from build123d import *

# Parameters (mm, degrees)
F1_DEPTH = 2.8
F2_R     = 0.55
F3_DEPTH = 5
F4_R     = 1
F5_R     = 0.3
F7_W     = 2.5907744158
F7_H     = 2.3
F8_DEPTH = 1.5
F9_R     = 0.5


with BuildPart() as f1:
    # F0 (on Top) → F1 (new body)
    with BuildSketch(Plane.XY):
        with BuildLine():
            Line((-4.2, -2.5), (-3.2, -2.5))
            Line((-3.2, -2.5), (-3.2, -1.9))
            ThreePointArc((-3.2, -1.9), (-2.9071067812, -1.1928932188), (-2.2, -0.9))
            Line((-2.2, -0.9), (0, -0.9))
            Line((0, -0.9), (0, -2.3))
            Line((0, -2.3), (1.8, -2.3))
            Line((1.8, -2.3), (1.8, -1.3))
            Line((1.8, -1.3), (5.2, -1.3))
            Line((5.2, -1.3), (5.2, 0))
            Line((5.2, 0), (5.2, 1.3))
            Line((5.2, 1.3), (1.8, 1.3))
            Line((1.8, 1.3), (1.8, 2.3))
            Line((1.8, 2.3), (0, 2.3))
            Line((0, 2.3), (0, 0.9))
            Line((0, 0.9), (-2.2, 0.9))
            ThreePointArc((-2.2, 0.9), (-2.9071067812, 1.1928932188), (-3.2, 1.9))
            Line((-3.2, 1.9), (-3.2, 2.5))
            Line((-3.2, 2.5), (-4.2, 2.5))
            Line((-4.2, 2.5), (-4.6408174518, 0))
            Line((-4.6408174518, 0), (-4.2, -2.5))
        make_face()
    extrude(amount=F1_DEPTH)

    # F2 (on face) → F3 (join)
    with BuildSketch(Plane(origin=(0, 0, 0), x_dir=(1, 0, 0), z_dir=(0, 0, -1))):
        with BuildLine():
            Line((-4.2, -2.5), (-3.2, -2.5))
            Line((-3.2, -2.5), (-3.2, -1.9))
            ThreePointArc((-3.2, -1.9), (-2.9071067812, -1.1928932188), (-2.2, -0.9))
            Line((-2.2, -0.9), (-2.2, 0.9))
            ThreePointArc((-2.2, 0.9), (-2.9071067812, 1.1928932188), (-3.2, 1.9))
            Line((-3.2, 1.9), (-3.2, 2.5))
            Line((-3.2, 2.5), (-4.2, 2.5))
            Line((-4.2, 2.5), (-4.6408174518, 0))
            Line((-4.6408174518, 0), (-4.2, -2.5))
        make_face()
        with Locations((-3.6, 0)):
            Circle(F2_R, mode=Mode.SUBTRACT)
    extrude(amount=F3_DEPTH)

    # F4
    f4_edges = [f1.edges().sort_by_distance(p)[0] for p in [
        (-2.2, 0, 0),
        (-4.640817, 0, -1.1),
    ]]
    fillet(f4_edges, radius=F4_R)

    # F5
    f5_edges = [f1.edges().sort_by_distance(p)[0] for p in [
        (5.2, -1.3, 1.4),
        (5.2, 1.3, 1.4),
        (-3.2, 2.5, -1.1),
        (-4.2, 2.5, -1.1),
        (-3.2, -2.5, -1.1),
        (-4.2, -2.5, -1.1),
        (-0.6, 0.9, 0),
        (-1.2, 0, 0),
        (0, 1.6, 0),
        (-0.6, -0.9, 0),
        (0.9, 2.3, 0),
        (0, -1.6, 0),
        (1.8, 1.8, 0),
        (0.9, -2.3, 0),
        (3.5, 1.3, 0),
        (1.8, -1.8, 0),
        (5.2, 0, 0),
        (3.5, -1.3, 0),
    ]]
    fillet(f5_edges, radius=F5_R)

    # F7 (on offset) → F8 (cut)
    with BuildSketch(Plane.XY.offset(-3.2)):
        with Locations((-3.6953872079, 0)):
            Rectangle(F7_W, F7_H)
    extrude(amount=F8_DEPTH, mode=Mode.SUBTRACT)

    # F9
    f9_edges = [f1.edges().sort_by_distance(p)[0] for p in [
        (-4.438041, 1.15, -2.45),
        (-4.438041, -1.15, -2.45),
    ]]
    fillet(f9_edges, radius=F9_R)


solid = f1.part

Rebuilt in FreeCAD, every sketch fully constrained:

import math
import FreeCAD as App
import Part
import Sketcher
Q = App.Units.Quantity


def edges_at(feature, points):
    """Names of the edges that pass closest to the given points."""
    edges = feature.Shape.Edges
    near = lambda p: min(range(len(edges)), key=lambda i: edges[i].distToShape(Part.Vertex(*p))[0])
    return sorted({f"Edge{near(p) + 1}" for p in points})

doc = App.newDocument("Part")
body = doc.addObject("PartDesign::Body", "Body")

sketch1 = doc.addObject("Sketcher::SketchObject", "Sketch")
body.addObject(sketch1)
sketch1.AttachmentSupport = (doc.XY_Plane, [""])
sketch1.MapMode = "FlatFace"
sketch1.addGeometry([
    Part.LineSegment(App.Vector(-4.2, -2.5, 0), App.Vector(-3.2, -2.5, 0)),
    Part.LineSegment(App.Vector(-3.2, -2.5, 0), App.Vector(-3.2, -1.9, 0)),
    Part.ArcOfCircle(Part.Circle(App.Vector(-2.2, -1.9, 0), App.Vector(0, 0, 1), 1), math.radians(90), math.radians(180)),
    Part.LineSegment(App.Vector(-2.2, -0.9, 0), App.Vector(0, -0.9, 0)),
    Part.LineSegment(App.Vector(0, -0.9, 0), App.Vector(0, -2.3, 0)),
    Part.LineSegment(App.Vector(0, -2.3, 0), App.Vector(1.8, -2.3, 0)),
    Part.LineSegment(App.Vector(1.8, -2.3, 0), App.Vector(1.8, -1.3, 0)),
    Part.LineSegment(App.Vector(1.8, -1.3, 0), App.Vector(5.2, -1.3, 0)),
    Part.LineSegment(App.Vector(5.2, -1.3, 0), App.Vector(5.2, 1.3, 0)),
    Part.LineSegment(App.Vector(5.2, 1.3, 0), App.Vector(1.8, 1.3, 0)),
    Part.LineSegment(App.Vector(1.8, 1.3, 0), App.Vector(1.8, 2.3, 0)),
    Part.LineSegment(App.Vector(1.8, 2.3, 0), App.Vector(0, 2.3, 0)),
    Part.LineSegment(App.Vector(0, 2.3, 0), App.Vector(0, 0.9, 0)),
    Part.LineSegment(App.Vector(0, 0.9, 0), App.Vector(-2.2, 0.9, 0)),
    Part.ArcOfCircle(Part.Circle(App.Vector(-2.2, 1.9, 0), App.Vector(0, 0, 1), 1), math.radians(180), math.radians(270)),
    Part.LineSegment(App.Vector(-3.2, 1.9, 0), App.Vector(-3.2, 2.5, 0)),
    Part.LineSegment(App.Vector(-3.2, 2.5, 0), App.Vector(-4.2, 2.5, 0)),
    Part.LineSegment(App.Vector(-4.2, 2.5, 0), App.Vector(-4.640817, 0, 0)),
    Part.LineSegment(App.Vector(-4.640817, 0, 0), App.Vector(-4.2, -2.5, 0)),
], False)
sketch1.addConstraint([
    Sketcher.Constraint("Coincident", 0, 2, 1, 1),
    Sketcher.Constraint("Tangent", 1, 2, 2, 2),
    Sketcher.Constraint("Tangent", 2, 1, 3, 1),
    Sketcher.Constraint("Coincident", 3, 2, 4, 1),
    Sketcher.Constraint("Coincident", 4, 2, 5, 1),
    Sketcher.Constraint("Coincident", 5, 2, 6, 1),
    Sketcher.Constraint("Coincident", 6, 2, 7, 1),
    Sketcher.Constraint("Coincident", 7, 2, 8, 1),
    Sketcher.Constraint("Coincident", 8, 2, 9, 1),
    Sketcher.Constraint("Coincident", 9, 2, 10, 1),
    Sketcher.Constraint("Coincident", 10, 2, 11, 1),
    Sketcher.Constraint("Coincident", 11, 2, 12, 1),
    Sketcher.Constraint("Coincident", 12, 2, 13, 1),
    Sketcher.Constraint("Tangent", 13, 2, 14, 2),
    Sketcher.Constraint("Tangent", 14, 1, 15, 1),
    Sketcher.Constraint("Coincident", 15, 2, 16, 1),
    Sketcher.Constraint("Coincident", 16, 2, 17, 1),
    Sketcher.Constraint("Coincident", 17, 2, 18, 1),
    Sketcher.Constraint("Coincident", 18, 2, 0, 1),
    Sketcher.Constraint("Horizontal", 0),
    Sketcher.Constraint("Vertical", 1),
    Sketcher.Constraint("Horizontal", 3),
    Sketcher.Constraint("Vertical", 4),
    Sketcher.Constraint("Horizontal", 5),
    Sketcher.Constraint("Vertical", 6),
    Sketcher.Constraint("Horizontal", 7),
    Sketcher.Constraint("Vertical", 8),
    Sketcher.Constraint("Horizontal", 9),
    Sketcher.Constraint("Vertical", 10),
    Sketcher.Constraint("Horizontal", 11),
    Sketcher.Constraint("Vertical", 12),
    Sketcher.Constraint("Horizontal", 13),
    Sketcher.Constraint("Vertical", 15),
    Sketcher.Constraint("Horizontal", 16),
    Sketcher.Constraint("Equal", 2, 14),
    Sketcher.Constraint("Symmetric", 4, 2, 11, 2, -1, 1),
    Sketcher.Constraint("Symmetric", 2, 3, 14, 3, -1),
    Sketcher.Constraint("Symmetric", 6, 2, 9, 2, -1),
    Sketcher.Constraint("Symmetric", 16, 2, 18, 2, -1),
    Sketcher.Constraint("PointOnObject", 3, 2, -2),
    Sketcher.Constraint("PointOnObject", 17, 2, -1),
    Sketcher.Constraint("Equal", 16, 6),
    Sketcher.Constraint("Radius", 2, 1.0),
    Sketcher.Constraint("DistanceX", 0, 1, 0, 2, 1.0),
    Sketcher.Constraint("Angle", 17, Q("-100 deg")),
    Sketcher.Constraint("DistanceX", 3, 1, 3, 2, 2.2),
    Sketcher.Constraint("DistanceX", 5, 1, 5, 2, 1.8),
    Sketcher.Constraint("DistanceX", 7, 1, 7, 2, 3.4),
    Sketcher.Constraint("DistanceY", 1, 1, 1, 2, 0.6),
    Sketcher.Constraint("DistanceY", 4, 2, 4, 1, 1.4),
    Sketcher.Constraint("DistanceY", 8, 1, 8, 2, 2.6),
])
pad1 = doc.addObject("PartDesign::Pad", "Pad")
body.addObject(pad1)
pad1.Profile = sketch1
pad1.Length = 2.8

sketch2 = doc.addObject("Sketcher::SketchObject", "Sketch001")
body.addObject(sketch2)
sketch2.AttachmentSupport = (doc.XY_Plane, [""])
sketch2.MapMode = "FlatFace"
sketch2.addGeometry([
    Part.LineSegment(App.Vector(-4.2, 2.5, 0), App.Vector(-3.2, 2.5, 0)),
    Part.LineSegment(App.Vector(-3.2, 2.5, 0), App.Vector(-3.2, 1.9, 0)),
    Part.ArcOfCircle(Part.Circle(App.Vector(-2.2, 1.9, 0), App.Vector(0, 0, 1), 1), math.radians(180), math.radians(270)),
    Part.LineSegment(App.Vector(-2.2, 0.9, 0), App.Vector(-2.2, -0.9, 0)),
    Part.ArcOfCircle(Part.Circle(App.Vector(-2.2, -1.9, 0), App.Vector(0, 0, 1), 1), math.radians(90), math.radians(180)),
    Part.LineSegment(App.Vector(-3.2, -1.9, 0), App.Vector(-3.2, -2.5, 0)),
    Part.LineSegment(App.Vector(-3.2, -2.5, 0), App.Vector(-4.2, -2.5, 0)),
    Part.LineSegment(App.Vector(-4.2, -2.5, 0), App.Vector(-4.640817, 0, 0)),
    Part.LineSegment(App.Vector(-4.640817, 0, 0), App.Vector(-4.2, 2.5, 0)),
    Part.Circle(App.Vector(-3.6, 0, 0), App.Vector(0, 0, 1), 0.55),
], False)
sketch2.addConstraint([
    Sketcher.Constraint("Coincident", 0, 2, 1, 1),
    Sketcher.Constraint("Tangent", 1, 2, 2, 1),
    Sketcher.Constraint("Coincident", 2, 2, 3, 1),
    Sketcher.Constraint("Coincident", 3, 2, 4, 1),
    Sketcher.Constraint("Tangent", 4, 2, 5, 1),
    Sketcher.Constraint("Coincident", 5, 2, 6, 1),
    Sketcher.Constraint("Coincident", 6, 2, 7, 1),
    Sketcher.Constraint("Coincident", 7, 2, 8, 1),
    Sketcher.Constraint("Coincident", 8, 2, 0, 1),
    Sketcher.Constraint("Horizontal", 0),
    Sketcher.Constraint("Vertical", 1),
    Sketcher.Constraint("Vertical", 3),
    Sketcher.Constraint("Vertical", 5),
    Sketcher.Constraint("Horizontal", 6),
    Sketcher.Constraint("Equal", 2, 4),
    Sketcher.Constraint("Symmetric", 2, 3, 4, 3, -1),
    Sketcher.Constraint("Symmetric", 6, 2, 8, 2, -1),
    Sketcher.Constraint("PointOnObject", 9, 3, -1),
    Sketcher.Constraint("PointOnObject", 7, 2, -1),
    Sketcher.Constraint("Vertical", 4, 3, 2, 2),
    Sketcher.Constraint("Radius", 2, 1.0),
    Sketcher.Constraint("Diameter", 9, 1.1),
    Sketcher.Constraint("DistanceX", 0, 1, 0, 2, 1.0),
    Sketcher.Constraint("Angle", 7, Q("100 deg")),
    Sketcher.Constraint("DistanceY", 1, 2, 1, 1, 0.6),
    Sketcher.Constraint("DistanceY", 3, 2, 3, 1, 1.8),
    Sketcher.Constraint("DistanceX", 2, 3, -1, 1, 2.2),
    Sketcher.Constraint("DistanceX", 9, 3, -1, 1, 3.6),
])
pad2 = doc.addObject("PartDesign::Pad", "Pad001")
body.addObject(pad2)
pad2.Profile = sketch2
pad2.Length = 5
pad2.Reversed = True
doc.recompute()

fillet = doc.addObject("PartDesign::Fillet", "Fillet")
body.addObject(fillet)
fillet.Base = (pad2, edges_at(pad2, [(-2.2, 0, 0), (-4.641, 0, -1.1)]))
fillet.Radius = 1
doc.recompute()

fillet2 = doc.addObject("PartDesign::Fillet", "Fillet001")
body.addObject(fillet2)
fillet2.Base = (fillet, edges_at(fillet, [
    (5.2, -1.3, 1.4),
    (5.2, 1.3, 1.4),
    (-3.2, 2.5, -1.1),
    (-4.2, 2.5, -1.1),
    (-3.2, -2.5, -1.1),
    (-4.2, -2.5, -1.1),
    (-0.6, 0.9, 0),
    (-1.2, 0, 0),
    (0, 1.6, 0),
    (-0.6, -0.9, 0),
    (0.9, 2.3, 0),
    (0, -1.6, 0),
    (1.8, 1.8, 0),
    (0.9, -2.3, 0),
    (3.5, 1.3, 0),
    (1.8, -1.8, 0),
    (5.2, 0, 0),
    (3.5, -1.3, 0),
]))
fillet2.Radius = 0.3

sketch3 = doc.addObject("Sketcher::SketchObject", "Sketch002")
body.addObject(sketch3)
sketch3.AttachmentSupport = (doc.XY_Plane, [""])
sketch3.MapMode = "FlatFace"
sketch3.AttachmentOffset = App.Placement(App.Vector(0, 0, -3.2), App.Rotation())
sketch3.addGeometry([
    Part.LineSegment(App.Vector(-4.990774, 1.15, 0), App.Vector(-4.990774, -1.15, 0)),
    Part.LineSegment(App.Vector(-4.990774, -1.15, 0), App.Vector(-2.4, -1.15, 0)),
    Part.LineSegment(App.Vector(-2.4, -1.15, 0), App.Vector(-2.4, 1.15, 0)),
    Part.LineSegment(App.Vector(-2.4, 1.15, 0), App.Vector(-4.990774, 1.15, 0)),
], False)
sketch3.addConstraint([
    Sketcher.Constraint("Coincident", 0, 2, 1, 1),
    Sketcher.Constraint("Coincident", 1, 2, 2, 1),
    Sketcher.Constraint("Coincident", 2, 2, 3, 1),
    Sketcher.Constraint("Coincident", 3, 2, 0, 1),
    Sketcher.Constraint("Vertical", 0),
    Sketcher.Constraint("Horizontal", 1),
    Sketcher.Constraint("Vertical", 2),
    Sketcher.Constraint("Horizontal", 3),
    Sketcher.Constraint("DistanceY", 0, 2, 0, 1, 2.3),
    Sketcher.Constraint("DistanceX", 1, 2, -1, 1, 2.4),
    Sketcher.Constraint("DistanceY", 0, 2, -1, 1, 1.15),
    Sketcher.Constraint("DistanceX", 1, 1, 1, 2, 2.590774),
])
pocket1 = doc.addObject("PartDesign::Pocket", "Pocket")
body.addObject(pocket1)
pocket1.Profile = sketch3
pocket1.Length = 1.5
pocket1.Reversed = True
doc.recompute()

fillet3 = doc.addObject("PartDesign::Fillet", "Fillet002")
body.addObject(fillet3)
fillet3.Base = (pocket1, edges_at(pocket1, [(-4.438, 1.15, -2.45), (-4.438, -1.15, -2.45)]))
fillet3.Radius = 0.5

doc.recompute()
